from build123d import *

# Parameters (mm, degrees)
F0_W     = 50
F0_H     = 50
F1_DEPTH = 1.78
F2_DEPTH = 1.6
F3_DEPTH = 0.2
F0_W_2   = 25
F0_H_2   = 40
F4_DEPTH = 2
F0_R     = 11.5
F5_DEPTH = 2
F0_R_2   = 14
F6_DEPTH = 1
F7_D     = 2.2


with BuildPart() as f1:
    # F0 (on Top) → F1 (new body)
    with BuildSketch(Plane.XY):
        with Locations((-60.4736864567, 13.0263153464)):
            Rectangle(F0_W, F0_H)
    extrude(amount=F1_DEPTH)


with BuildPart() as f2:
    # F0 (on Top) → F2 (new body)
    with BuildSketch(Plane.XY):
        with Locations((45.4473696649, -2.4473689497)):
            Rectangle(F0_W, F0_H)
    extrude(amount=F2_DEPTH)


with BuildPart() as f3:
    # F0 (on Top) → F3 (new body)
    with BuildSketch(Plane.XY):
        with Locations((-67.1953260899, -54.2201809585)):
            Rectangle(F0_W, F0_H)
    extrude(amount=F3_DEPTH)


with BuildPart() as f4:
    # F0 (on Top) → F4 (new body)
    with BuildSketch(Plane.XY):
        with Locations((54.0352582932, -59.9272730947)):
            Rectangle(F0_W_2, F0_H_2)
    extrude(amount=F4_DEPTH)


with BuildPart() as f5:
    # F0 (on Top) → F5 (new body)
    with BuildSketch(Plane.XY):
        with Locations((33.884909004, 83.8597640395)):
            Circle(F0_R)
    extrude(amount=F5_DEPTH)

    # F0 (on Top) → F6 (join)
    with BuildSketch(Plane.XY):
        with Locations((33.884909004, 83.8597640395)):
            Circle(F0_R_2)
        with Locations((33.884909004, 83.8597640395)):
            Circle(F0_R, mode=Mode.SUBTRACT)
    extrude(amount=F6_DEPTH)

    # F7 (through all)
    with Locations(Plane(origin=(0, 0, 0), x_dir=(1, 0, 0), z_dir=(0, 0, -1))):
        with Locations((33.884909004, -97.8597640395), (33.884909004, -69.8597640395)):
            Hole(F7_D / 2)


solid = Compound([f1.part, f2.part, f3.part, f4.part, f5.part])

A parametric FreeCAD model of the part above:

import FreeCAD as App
import Part
import Sketcher
from FreeCAD import Vector

doc = App.newDocument("Part")
body = doc.addObject("PartDesign::Body", "Body")

# Sketch on XY plane
sketch1 = body.newObject("Sketcher::SketchObject", "Sketch")
sketch1.AttachmentSupport = (doc.getObject("XY_Plane"), [""])
sketch1.MapMode = "FlatFace"
sketch1.addGeometry([
    Part.LineSegment(Vector(-85, 38, 0), Vector(-85, -12, 0)),
    Part.LineSegment(Vector(-85, -12, 0), Vector(-35, -12, 0)),
    Part.LineSegment(Vector(-35, -12, 0), Vector(-35, 38, 0)),
    Part.LineSegment(Vector(-35, 38, 0), Vector(-85, 38, 0)),
], False)
sketch1.addConstraint([
    Sketcher.Constraint("Coincident", 0, 2, 1, 1),
    Sketcher.Constraint("Coincident", 1, 2, 2, 1),
    Sketcher.Constraint("Coincident", 2, 2, 3, 1),
    Sketcher.Constraint("Coincident", 3, 2, 0, 1),
    Sketcher.Constraint("Vertical", 0),
    Sketcher.Constraint("Horizontal", 1),
    Sketcher.Constraint("Vertical", 2),
    Sketcher.Constraint("Horizontal", 3),
    Sketcher.Constraint("Equal", 3, 0),
    Sketcher.Constraint("DistanceX", 1, 1, 1, 2, 50.0),
    Sketcher.Constraint("DistanceX", 0, 2, -1, 1, 85.473686),
    Sketcher.Constraint("DistanceY", 0, 2, -1, 1, 11.973685),
])
pad1 = body.newObject("PartDesign::Pad", "Pad")
pad1.Profile = sketch1
pad1.Length = 1.78
body2 = doc.addObject("PartDesign::Body", "Body001")

# Sketch on XY plane
sketch2 = body2.newObject("Sketcher::SketchObject", "Sketch001")
sketch2.AttachmentSupport = (doc.getObject("XY_Plane001"), [""])
sketch2.MapMode = "FlatFace"
sketch2.addGeometry([
    Part.LineSegment(Vector(20, 23, 0), Vector(20, -27, 0)),
    Part.LineSegment(Vector(20, -27, 0), Vector(70, -27, 0)),
    Part.LineSegment(Vector(70, -27, 0), Vector(70, 23, 0)),
    Part.LineSegment(Vector(70, 23, 0), Vector(20, 23, 0)),
], False)
sketch2.addConstraint([
    Sketcher.Constraint("Coincident", 0, 2, 1, 1),
    Sketcher.Constraint("Coincident", 1, 2, 2, 1),
    Sketcher.Constraint("Coincident", 2, 2, 3, 1),
    Sketcher.Constraint("Coincident", 3, 2, 0, 1),
    Sketcher.Constraint("Vertical", 0),
    Sketcher.Constraint("Horizontal", 1),
    Sketcher.Constraint("Vertical", 2),
    Sketcher.Constraint("Horizontal", 3),
    Sketcher.Constraint("Equal", 3, 0),
    Sketcher.Constraint("DistanceX", 1, 1, 1, 2, 50.0),
    Sketcher.Constraint("DistanceX", -1, 1, 0, 2, 20.44737),
    Sketcher.Constraint("DistanceY", 0, 2, -1, 1, 27.447369),
])
pad2 = body2.newObject("PartDesign::Pad", "Pad001")
pad2.Profile = sketch2
pad2.Length = 1.6
body3 = doc.addObject("PartDesign::Body", "Body002")

# Sketch on XY plane
sketch3 = body3.newObject("Sketcher::SketchObject", "Sketch002")
sketch3.AttachmentSupport = (doc.getObject("XY_Plane002"), [""])
sketch3.MapMode = "FlatFace"
sketch3.addGeometry([
    Part.LineSegment(Vector(-92, -29, 0), Vector(-92, -79, 0)),
    Part.LineSegment(Vector(-92, -79, 0), Vector(-42, -79, 0)),
    Part.LineSegment(Vector(-42, -79, 0), Vector(-42, -29, 0)),
    Part.LineSegment(Vector(-42, -29, 0), Vector(-92, -29, 0)),
], False)
sketch3.addConstraint([
    Sketcher.Constraint("Coincident", 0, 2, 1, 1),
    Sketcher.Constraint("Coincident", 1, 2, 2, 1),
    Sketcher.Constraint("Coincident", 2, 2, 3, 1),
    Sketcher.Constraint("Coincident", 3, 2, 0, 1),
    Sketcher.Constraint("Vertical", 0),
    Sketcher.Constraint("Horizontal", 1),
    Sketcher.Constraint("Vertical", 2),
    Sketcher.Constraint("Horizontal", 3),
    Sketcher.Constraint("Equal", 3, 0),
    Sketcher.Constraint("DistanceX", 1, 1, 1, 2, 50.0),
    Sketcher.Constraint("DistanceY", 0, 2, -1, 1, 79.220181),
    Sketcher.Constraint("DistanceX", 0, 2, -1, 1, 92.195326),
])
pad3 = body3.newObject("PartDesign::Pad", "Pad002")
pad3.Profile = sketch3
pad3.Length = 0.2
body4 = doc.addObject("PartDesign::Body", "Body003")

# Sketch on XY plane
sketch4 = body4.newObject("Sketcher::SketchObject", "Sketch003")
sketch4.AttachmentSupport = (doc.getObject("XY_Plane003"), [""])
sketch4.MapMode = "FlatFace"
sketch4.addGeometry([
    Part.LineSegment(Vector(42, -40, 0), Vector(42, -80, 0)),
    Part.LineSegment(Vector(42, -80, 0), Vector(67, -80, 0)),
    Part.LineSegment(Vector(67, -80, 0), Vector(67, -40, 0)),
    Part.LineSegment(Vector(67, -40, 0), Vector(42, -40, 0)),
], False)
sketch4.addConstraint([
    Sketcher.Constraint("Coincident", 0, 2, 1, 1),
    Sketcher.Constraint("Coincident", 1, 2, 2, 1),
    Sketcher.Constraint("Coincident", 2, 2, 3, 1),
    Sketcher.Constraint("Coincident", 3, 2, 0, 1),
    Sketcher.Constraint("Vertical", 0),
    Sketcher.Constraint("Horizontal", 1),
    Sketcher.Constraint("Vertical", 2),
    Sketcher.Constraint("Horizontal", 3),
    Sketcher.Constraint("DistanceX", 1, 1, 1, 2, 25.0),
    Sketcher.Constraint("DistanceY", 0, 2, 0, 1, 40.0),
    Sketcher.Constraint("DistanceX", -1, 1, 0, 2, 41.535258),
    Sketcher.Constraint("DistanceY", 0, 2, -1, 1, 79.927273),
])
pad4 = body4.newObject("PartDesign::Pad", "Pad003")
pad4.Profile = sketch4
pad4.Length = 2
body5 = doc.addObject("PartDesign::Body", "Body004")

# Sketch on XY plane
sketch5 = body5.newObject("Sketcher::SketchObject", "Sketch004")
sketch5.AttachmentSupport = (doc.getObject("XY_Plane004"), [""])
sketch5.MapMode = "FlatFace"
sketch5.addGeometry(Part.Circle(Vector(34, 84, 0), Vector(0, 0, 1), 12), False)
sketch5.addConstraint([
    Sketcher.Constraint("Diameter", 0, 23.0),
    Sketcher.Constraint("DistanceX", -1, 1, 0, 3, 33.884909),
    Sketcher.Constraint("DistanceY", -1, 1, 0, 3, 83.859764),
])
pad5 = body5.newObject("PartDesign::Pad", "Pad004")
pad5.Profile = sketch5
pad5.Length = 2

# Sketch on XY plane
sketch6 = body5.newObject("Sketcher::SketchObject", "Sketch005")
sketch6.AttachmentSupport = (doc.getObject("XY_Plane004"), [""])
sketch6.MapMode = "FlatFace"
sketch6.addGeometry([
    Part.Circle(Vector(34, 84, 0), Vector(0, 0, 1), 14),
    Part.Circle(Vector(34, 84, 0), Vector(0, 0, 1), 12),
], False)
sketch6.addConstraint([
    Sketcher.Constraint("Coincident", 1, 3, 0, 3),
    Sketcher.Constraint("Diameter", 0, 28.0),
    Sketcher.Constraint("Diameter", 1, 23.0),
    Sketcher.Constraint("DistanceX", -1, 1, 0, 3, 33.884909),
    Sketcher.Constraint("DistanceY", -1, 1, 0, 3, 83.859764),
])
pad6 = body5.newObject("PartDesign::Pad", "Pad005")
pad6.Profile = sketch6
pad6.Length = 1

# Sketch on XY plane
sketch7 = body5.newObject("Sketcher::SketchObject", "Sketch006")
sketch7.AttachmentSupport = (doc.getObject("XY_Plane004"), [""])
sketch7.MapMode = "FlatFace"
sketch7.addGeometry([
    Part.Circle(Vector(33.9, 97.9, 0), Vector(0, 0, 1), 1.1),
    Part.Circle(Vector(33.9, 69.9, 0), Vector(0, 0, 1), 1.1),
], False)
sketch7.addConstraint([
    Sketcher.Constraint("Equal", 0, 1),
    Sketcher.Constraint("Vertical", 0, 3, 1, 3),
    Sketcher.Constraint("Diameter", 0, 2.2),
    Sketcher.Constraint("DistanceY", 1, 3, 0, 3, 28.0),
    Sketcher.Constraint("DistanceX", -1, 1, 0, 3, 33.884909),
    Sketcher.Constraint("DistanceY", -1, 1, 0, 3, 97.859764),
])
doc.recompute()
hole = body5.newObject("PartDesign::Hole", "Hole")
hole.Profile = sketch7
hole.ThreadType = "None"
hole.Diameter = 2.2
hole.DepthType = "ThroughAll"
hole.Reversed = True

doc.recompute()
